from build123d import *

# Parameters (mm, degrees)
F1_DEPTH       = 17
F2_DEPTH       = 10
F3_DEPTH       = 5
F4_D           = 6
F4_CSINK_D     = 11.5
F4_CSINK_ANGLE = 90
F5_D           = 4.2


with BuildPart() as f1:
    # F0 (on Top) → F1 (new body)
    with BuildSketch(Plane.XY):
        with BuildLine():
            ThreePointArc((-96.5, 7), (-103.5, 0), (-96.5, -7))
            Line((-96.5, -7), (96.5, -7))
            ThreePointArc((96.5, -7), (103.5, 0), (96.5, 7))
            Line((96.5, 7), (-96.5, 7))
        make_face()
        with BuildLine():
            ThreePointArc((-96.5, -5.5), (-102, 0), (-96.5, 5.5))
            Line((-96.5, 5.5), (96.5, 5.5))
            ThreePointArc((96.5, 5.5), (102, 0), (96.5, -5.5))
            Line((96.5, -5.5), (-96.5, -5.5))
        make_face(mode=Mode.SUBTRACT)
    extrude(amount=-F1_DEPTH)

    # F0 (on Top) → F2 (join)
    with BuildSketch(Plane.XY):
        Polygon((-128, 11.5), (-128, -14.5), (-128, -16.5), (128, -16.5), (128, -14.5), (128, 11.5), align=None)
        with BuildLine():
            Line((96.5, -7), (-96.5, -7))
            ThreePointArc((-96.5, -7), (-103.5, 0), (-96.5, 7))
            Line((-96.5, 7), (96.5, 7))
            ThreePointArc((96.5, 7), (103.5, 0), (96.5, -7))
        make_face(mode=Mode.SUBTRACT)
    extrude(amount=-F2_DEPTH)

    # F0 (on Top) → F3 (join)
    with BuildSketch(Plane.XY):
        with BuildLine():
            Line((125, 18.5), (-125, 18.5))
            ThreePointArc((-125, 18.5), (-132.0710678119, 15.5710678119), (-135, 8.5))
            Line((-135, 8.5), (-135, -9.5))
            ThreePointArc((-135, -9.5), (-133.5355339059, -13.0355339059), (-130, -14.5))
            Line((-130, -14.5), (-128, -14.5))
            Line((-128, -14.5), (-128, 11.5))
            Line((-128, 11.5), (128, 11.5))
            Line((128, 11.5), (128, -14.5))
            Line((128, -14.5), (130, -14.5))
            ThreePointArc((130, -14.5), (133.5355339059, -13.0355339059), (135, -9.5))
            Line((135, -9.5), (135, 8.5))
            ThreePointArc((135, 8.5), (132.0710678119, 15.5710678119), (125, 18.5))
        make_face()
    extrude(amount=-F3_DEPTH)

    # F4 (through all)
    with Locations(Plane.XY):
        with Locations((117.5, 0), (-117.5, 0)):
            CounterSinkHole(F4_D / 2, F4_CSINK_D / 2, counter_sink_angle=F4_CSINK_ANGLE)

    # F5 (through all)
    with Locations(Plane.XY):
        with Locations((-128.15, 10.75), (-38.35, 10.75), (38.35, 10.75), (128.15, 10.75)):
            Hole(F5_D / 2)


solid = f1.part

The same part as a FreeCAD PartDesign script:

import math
import FreeCAD as App
import Part
import Sketcher
from FreeCAD import Vector
Q = App.Units.Quantity


def add_polygon(sketch, points):
    """Adds a closed chain of lines whose ends are joined by coincident constraints."""
    first, n = sketch.GeometryCount, len(points)
    for a, b in zip(points, points[1:] + points[:1]):
        sketch.addGeometry(Part.LineSegment(App.Vector(*a, 0), App.Vector(*b, 0)), False)
    for i in range(n):
        sketch.addConstraint(Sketcher.Constraint("Coincident", first + i, 2, first + (i + 1) % n, 1))

doc = App.newDocument("Part")
body = doc.addObject("PartDesign::Body", "Body")

sketch1 = body.newObject("Sketcher::SketchObject", "Sketch")
sketch1.AttachmentSupport = (doc.getObject("XY_Plane"), [""])
sketch1.MapMode = "FlatFace"
sketch1.addGeometry([
    Part.ArcOfCircle(Part.Circle(Vector(-96, 0, 0), Vector(0, 0, 1), 7), math.radians(90), math.radians(270)),
    Part.LineSegment(Vector(-96, -7, 0), Vector(96, -7, 0)),
    Part.ArcOfCircle(Part.Circle(Vector(96, 0, 0), Vector(0, 0, 1), 7), math.radians(-90), math.radians(90)),
    Part.LineSegment(Vector(96, 7, 0), Vector(-96, 7, 0)),
    Part.LineSegment(Vector(96, -6, 0), Vector(-96, -6, 0)),
    Part.ArcOfCircle(Part.Circle(Vector(-96, 0, 0), Vector(0, 0, 1), 6), math.radians(90), math.radians(270)),
    Part.LineSegment(Vector(-96, 6, 0), Vector(96, 6, 0)),
    Part.ArcOfCircle(Part.Circle(Vector(96, 0, 0), Vector(0, 0, 1), 6), math.radians(-90), math.radians(90)),
], False)
sketch1.addConstraint([
    Sketcher.Constraint("Tangent", 0, 2, 1, 1),
    Sketcher.Constraint("Tangent", 1, 2, 2, 1),
    Sketcher.Constraint("Tangent", 2, 2, 3, 1),
    Sketcher.Constraint("Tangent", 3, 2, 0, 1),
    Sketcher.Constraint("Tangent", 4, 2, 5, 2),
    Sketcher.Constraint("Tangent", 5, 1, 6, 1),
    Sketcher.Constraint("Tangent", 6, 2, 7, 2),
    Sketcher.Constraint("Tangent", 7, 1, 4, 1),
    Sketcher.Constraint("Horizontal", 1),
    Sketcher.Constraint("Horizontal", 3),
    Sketcher.Constraint("Horizontal", 4),
    Sketcher.Constraint("Horizontal", 6),
    Sketcher.Constraint("Coincident", 5, 3, 0, 3),
    Sketcher.Constraint("Symmetric", 0, 3, 2, 3, -1, 1),
    Sketcher.Constraint("Vertical", 7, 3, 1, 2),
    Sketcher.Constraint("Radius", 0, Q("7 mm")),
    Sketcher.Constraint("Radius", 5, Q("5.5 mm")),
    Sketcher.Constraint("DistanceX", 1, 1, 1, 2, Q("193 mm")),
])
pad1 = body.newObject("PartDesign::Pad", "Pad")
pad1.Profile = sketch1
pad1.Length = 17
pad1.Reversed = True

sketch2 = body.newObject("Sketcher::SketchObject", "Sketch001")
sketch2.AttachmentSupport = (doc.getObject("XY_Plane"), [""])
sketch2.MapMode = "FlatFace"
add_polygon(sketch2, [(-128, 12), (-128, -16), (128, -16), (128, 12)])
sketch2.addGeometry(Part.ArcOfCircle(Part.Circle(Vector(96, 0, 0), Vector(0, 0, 1), 7), math.radians(-90), math.radians(90)), False)
sketch2.addGeometry(Part.LineSegment(Vector(96, -7, 0), Vector(-96, -7, 0)), False)
sketch2.addGeometry(Part.ArcOfCircle(Part.Circle(Vector(-96, 0, 0), Vector(0, 0, 1), 7), math.radians(90), math.radians(270)), False)
sketch2.addGeometry(Part.LineSegment(Vector(-96, 7, 0), Vector(96, 7, 0)), False)
sketch2.addConstraint([
    Sketcher.Constraint("Tangent", 4, 1, 5, 1),
    Sketcher.Constraint("Tangent", 5, 2, 6, 2),
    Sketcher.Constraint("Tangent", 6, 1, 7, 1),
    Sketcher.Constraint("Tangent", 7, 2, 4, 2),
    Sketcher.Constraint("Vertical", 0),
    Sketcher.Constraint("Horizontal", 1),
    Sketcher.Constraint("Vertical", 2),
    Sketcher.Constraint("Horizontal", 3),
    Sketcher.Constraint("Horizontal", 5),
    Sketcher.Constraint("Horizontal", 7),
    Sketcher.Constraint("Symmetric", 4, 3, 6, 3, -1, 1),
    Sketcher.Constraint("Radius", 4, Q("7 mm")),
    Sketcher.Constraint("DistanceX", 1, 1, 1, 2, Q("256 mm")),
    Sketcher.Constraint("DistanceX", 5, 2, 5, 1, Q("193 mm")),
    Sketcher.Constraint("DistanceY", 0, 2, 0, 1, Q("28 mm")),
    Sketcher.Constraint("DistanceX", 0, 2, -1, 1, Q("128 mm")),
    Sketcher.Constraint("DistanceY", 0, 2, -1, 1, Q("16.5 mm")),
])
pad2 = body.newObject("PartDesign::Pad", "Pad001")
pad2.Profile = sketch2
pad2.Length = 10
pad2.Reversed = True

sketch3 = body.newObject("Sketcher::SketchObject", "Sketch002")
sketch3.AttachmentSupport = (doc.getObject("XY_Plane"), [""])
sketch3.MapMode = "FlatFace"
sketch3.addGeometry([
    Part.LineSegment(Vector(125, 18.5, 0), Vector(-125, 18.5, 0)),
    Part.ArcOfCircle(Part.Circle(Vector(-125, 8.5, 0), Vector(0, 0, 1), 10), math.radians(90), math.radians(180)),
    Part.LineSegment(Vector(-135, 8.5, 0), Vector(-135, -9.5, 0)),
    Part.ArcOfCircle(Part.Circle(Vector(-130, -9.5, 0), Vector(0, 0, 1), 5), math.radians(180), math.radians(270)),
    Part.LineSegment(Vector(-130, -14.5, 0), Vector(-128, -14.5, 0)),
    Part.LineSegment(Vector(-128, -14.5, 0), Vector(-128, 11.5, 0)),
    Part.LineSegment(Vector(-128, 11.5, 0), Vector(128, 11.5, 0)),
    Part.LineSegment(Vector(128, 11.5, 0), Vector(128, -14.5, 0)),
    Part.LineSegment(Vector(128, -14.5, 0), Vector(130, -14.5, 0)),
    Part.ArcOfCircle(Part.Circle(Vector(130, -9.5, 0), Vector(0, 0, 1), 5), math.radians(-90), math.radians(0)),
    Part.LineSegment(Vector(135, -9.5, 0), Vector(135, 8.5, 0)),
    Part.ArcOfCircle(Part.Circle(Vector(125, 8.5, 0), Vector(0, 0, 1), 10), math.radians(0), math.radians(90)),
], False)
sketch3.addConstraint([
    Sketcher.Constraint("Tangent", 0, 2, 1, 1),
    Sketcher.Constraint("Tangent", 1, 2, 2, 1),
    Sketcher.Constraint("Tangent", 2, 2, 3, 1),
    Sketcher.Constraint("Tangent", 3, 2, 4, 1),
    Sketcher.Constraint("Coincident", 4, 2, 5, 1),
    Sketcher.Constraint("Coincident", 5, 2, 6, 1),
    Sketcher.Constraint("Coincident", 6, 2, 7, 1),
    Sketcher.Constraint("Coincident", 7, 2, 8, 1),
    Sketcher.Constraint("Tangent", 8, 2, 9, 1),
    Sketcher.Constraint("Tangent", 9, 2, 10, 1),
    Sketcher.Constraint("Tangent", 10, 2, 11, 1),
    Sketcher.Constraint("Tangent", 11, 2, 0, 1),
    Sketcher.Constraint("Horizontal", 0),
    Sketcher.Constraint("Vertical", 2),
    Sketcher.Constraint("Horizontal", 4),
    Sketcher.Constraint("Vertical", 5),
    Sketcher.Constraint("Horizontal", 6),
    Sketcher.Constraint("Vertical", 7),
    Sketcher.Constraint("Horizontal", 8),
    Sketcher.Constraint("Vertical", 10),
    Sketcher.Constraint("Equal", 3, 9),
    Sketcher.Constraint("Equal", 1, 11),
    Sketcher.Constraint("Symmetric", 3, 3, 9, 3, -2),
    Sketcher.Constraint("Equal", 4, 8),
    Sketcher.Constraint("Radius", 1, Q("10 mm")),
    Sketcher.Constraint("Radius", 3, Q("5 mm")),
    Sketcher.Constraint("DistanceX", 0, 2, 0, 1, Q("250 mm")),
    Sketcher.Constraint("DistanceX", 4, 1, 4, 2, Q("2 mm")),
    Sketcher.Constraint("DistanceY", 2, 2, 2, 1, Q("18 mm")),
    Sketcher.Constraint("DistanceY", 5, 1, 5, 2, Q("26 mm")),
    Sketcher.Constraint("DistanceY", -1, 1, 1, 3, Q("8.5 mm")),
])
pad3 = body.newObject("PartDesign::Pad", "Pad002")
pad3.Profile = sketch3
pad3.Length = 5
pad3.Reversed = True

sketch4 = body.newObject("Sketcher::SketchObject", "Sketch003")
sketch4.AttachmentSupport = (doc.getObject("XY_Plane"), [""])
sketch4.MapMode = "FlatFace"
sketch4.addGeometry([
    Part.Circle(Vector(117.5, 0, 0), Vector(0, 0, 1), 3),
    Part.Circle(Vector(-117.5, 0, 0), Vector(0, 0, 1), 3),
], False)
sketch4.addConstraint([
    Sketcher.Constraint("Equal", 0, 1),
    Sketcher.Constraint("Symmetric", 0, 3, 1, 3, -1, 1),
    Sketcher.Constraint("PointOnObject", 0, 3, -1),
    Sketcher.Constraint("Diameter", 0, Q("6 mm")),
    Sketcher.Constraint("DistanceX", 1, 3, 0, 3, Q("235 mm")),
])
doc.recompute()
hole = body.newObject("PartDesign::Hole", "Hole")
hole.Profile = sketch4
hole.ThreadType = "None"
hole.Diameter = 6
hole.DepthType = "ThroughAll"
hole.HoleCutType = "Countersink"
hole.HoleCutDiameter = 11.5
hole.HoleCutCountersinkAngle = 90

sketch5 = body.newObject("Sketcher::SketchObject", "Sketch004")
sketch5.AttachmentSupport = (doc.getObject("XY_Plane"), [""])
sketch5.MapMode = "FlatFace"
sketch5.addGeometry([
    Part.Circle(Vector(-128.2, 10.8, 0), Vector(0, 0, 1), 2.1),
    Part.Circle(Vector(-38.4, 10.8, 0), Vector(0, 0, 1), 2.1),
    Part.Circle(Vector(38.4, 10.8, 0), Vector(0, 0, 1), 2.1),
    Part.Circle(Vector(128.2, 10.8, 0), Vector(0, 0, 1), 2.1),
], False)
sketch5.addConstraint([
    Sketcher.Constraint("Equal", 0, 1),
    Sketcher.Constraint("Equal", 1, 2),
    Sketcher.Constraint("Equal", 2, 3),
    Sketcher.Constraint("Symmetric", 1, 3, 2, 3, -2),
    Sketcher.Constraint("Symmetric", 0, 3, 3, 3, -2),
    Sketcher.Constraint("Horizontal", 0, 3, 1, 3),
    Sketcher.Constraint("Diameter", 0, Q("4.2 mm")),
    Sketcher.Constraint("DistanceX", 0, 3, 1, 3, Q("89.8 mm")),
    Sketcher.Constraint("DistanceX", 1, 3, 2, 3, Q("76.7 mm")),
    Sketcher.Constraint("DistanceY", -1, 1, 0, 3, Q("10.75 mm")),
])
doc.recompute()
hole2 = body.newObject("PartDesign::Hole", "Hole001")
hole2.Profile = sketch5
hole2.ThreadType = "None"
hole2.Diameter = 4.2
hole2.DepthType = "ThroughAll"

doc.recompute()
